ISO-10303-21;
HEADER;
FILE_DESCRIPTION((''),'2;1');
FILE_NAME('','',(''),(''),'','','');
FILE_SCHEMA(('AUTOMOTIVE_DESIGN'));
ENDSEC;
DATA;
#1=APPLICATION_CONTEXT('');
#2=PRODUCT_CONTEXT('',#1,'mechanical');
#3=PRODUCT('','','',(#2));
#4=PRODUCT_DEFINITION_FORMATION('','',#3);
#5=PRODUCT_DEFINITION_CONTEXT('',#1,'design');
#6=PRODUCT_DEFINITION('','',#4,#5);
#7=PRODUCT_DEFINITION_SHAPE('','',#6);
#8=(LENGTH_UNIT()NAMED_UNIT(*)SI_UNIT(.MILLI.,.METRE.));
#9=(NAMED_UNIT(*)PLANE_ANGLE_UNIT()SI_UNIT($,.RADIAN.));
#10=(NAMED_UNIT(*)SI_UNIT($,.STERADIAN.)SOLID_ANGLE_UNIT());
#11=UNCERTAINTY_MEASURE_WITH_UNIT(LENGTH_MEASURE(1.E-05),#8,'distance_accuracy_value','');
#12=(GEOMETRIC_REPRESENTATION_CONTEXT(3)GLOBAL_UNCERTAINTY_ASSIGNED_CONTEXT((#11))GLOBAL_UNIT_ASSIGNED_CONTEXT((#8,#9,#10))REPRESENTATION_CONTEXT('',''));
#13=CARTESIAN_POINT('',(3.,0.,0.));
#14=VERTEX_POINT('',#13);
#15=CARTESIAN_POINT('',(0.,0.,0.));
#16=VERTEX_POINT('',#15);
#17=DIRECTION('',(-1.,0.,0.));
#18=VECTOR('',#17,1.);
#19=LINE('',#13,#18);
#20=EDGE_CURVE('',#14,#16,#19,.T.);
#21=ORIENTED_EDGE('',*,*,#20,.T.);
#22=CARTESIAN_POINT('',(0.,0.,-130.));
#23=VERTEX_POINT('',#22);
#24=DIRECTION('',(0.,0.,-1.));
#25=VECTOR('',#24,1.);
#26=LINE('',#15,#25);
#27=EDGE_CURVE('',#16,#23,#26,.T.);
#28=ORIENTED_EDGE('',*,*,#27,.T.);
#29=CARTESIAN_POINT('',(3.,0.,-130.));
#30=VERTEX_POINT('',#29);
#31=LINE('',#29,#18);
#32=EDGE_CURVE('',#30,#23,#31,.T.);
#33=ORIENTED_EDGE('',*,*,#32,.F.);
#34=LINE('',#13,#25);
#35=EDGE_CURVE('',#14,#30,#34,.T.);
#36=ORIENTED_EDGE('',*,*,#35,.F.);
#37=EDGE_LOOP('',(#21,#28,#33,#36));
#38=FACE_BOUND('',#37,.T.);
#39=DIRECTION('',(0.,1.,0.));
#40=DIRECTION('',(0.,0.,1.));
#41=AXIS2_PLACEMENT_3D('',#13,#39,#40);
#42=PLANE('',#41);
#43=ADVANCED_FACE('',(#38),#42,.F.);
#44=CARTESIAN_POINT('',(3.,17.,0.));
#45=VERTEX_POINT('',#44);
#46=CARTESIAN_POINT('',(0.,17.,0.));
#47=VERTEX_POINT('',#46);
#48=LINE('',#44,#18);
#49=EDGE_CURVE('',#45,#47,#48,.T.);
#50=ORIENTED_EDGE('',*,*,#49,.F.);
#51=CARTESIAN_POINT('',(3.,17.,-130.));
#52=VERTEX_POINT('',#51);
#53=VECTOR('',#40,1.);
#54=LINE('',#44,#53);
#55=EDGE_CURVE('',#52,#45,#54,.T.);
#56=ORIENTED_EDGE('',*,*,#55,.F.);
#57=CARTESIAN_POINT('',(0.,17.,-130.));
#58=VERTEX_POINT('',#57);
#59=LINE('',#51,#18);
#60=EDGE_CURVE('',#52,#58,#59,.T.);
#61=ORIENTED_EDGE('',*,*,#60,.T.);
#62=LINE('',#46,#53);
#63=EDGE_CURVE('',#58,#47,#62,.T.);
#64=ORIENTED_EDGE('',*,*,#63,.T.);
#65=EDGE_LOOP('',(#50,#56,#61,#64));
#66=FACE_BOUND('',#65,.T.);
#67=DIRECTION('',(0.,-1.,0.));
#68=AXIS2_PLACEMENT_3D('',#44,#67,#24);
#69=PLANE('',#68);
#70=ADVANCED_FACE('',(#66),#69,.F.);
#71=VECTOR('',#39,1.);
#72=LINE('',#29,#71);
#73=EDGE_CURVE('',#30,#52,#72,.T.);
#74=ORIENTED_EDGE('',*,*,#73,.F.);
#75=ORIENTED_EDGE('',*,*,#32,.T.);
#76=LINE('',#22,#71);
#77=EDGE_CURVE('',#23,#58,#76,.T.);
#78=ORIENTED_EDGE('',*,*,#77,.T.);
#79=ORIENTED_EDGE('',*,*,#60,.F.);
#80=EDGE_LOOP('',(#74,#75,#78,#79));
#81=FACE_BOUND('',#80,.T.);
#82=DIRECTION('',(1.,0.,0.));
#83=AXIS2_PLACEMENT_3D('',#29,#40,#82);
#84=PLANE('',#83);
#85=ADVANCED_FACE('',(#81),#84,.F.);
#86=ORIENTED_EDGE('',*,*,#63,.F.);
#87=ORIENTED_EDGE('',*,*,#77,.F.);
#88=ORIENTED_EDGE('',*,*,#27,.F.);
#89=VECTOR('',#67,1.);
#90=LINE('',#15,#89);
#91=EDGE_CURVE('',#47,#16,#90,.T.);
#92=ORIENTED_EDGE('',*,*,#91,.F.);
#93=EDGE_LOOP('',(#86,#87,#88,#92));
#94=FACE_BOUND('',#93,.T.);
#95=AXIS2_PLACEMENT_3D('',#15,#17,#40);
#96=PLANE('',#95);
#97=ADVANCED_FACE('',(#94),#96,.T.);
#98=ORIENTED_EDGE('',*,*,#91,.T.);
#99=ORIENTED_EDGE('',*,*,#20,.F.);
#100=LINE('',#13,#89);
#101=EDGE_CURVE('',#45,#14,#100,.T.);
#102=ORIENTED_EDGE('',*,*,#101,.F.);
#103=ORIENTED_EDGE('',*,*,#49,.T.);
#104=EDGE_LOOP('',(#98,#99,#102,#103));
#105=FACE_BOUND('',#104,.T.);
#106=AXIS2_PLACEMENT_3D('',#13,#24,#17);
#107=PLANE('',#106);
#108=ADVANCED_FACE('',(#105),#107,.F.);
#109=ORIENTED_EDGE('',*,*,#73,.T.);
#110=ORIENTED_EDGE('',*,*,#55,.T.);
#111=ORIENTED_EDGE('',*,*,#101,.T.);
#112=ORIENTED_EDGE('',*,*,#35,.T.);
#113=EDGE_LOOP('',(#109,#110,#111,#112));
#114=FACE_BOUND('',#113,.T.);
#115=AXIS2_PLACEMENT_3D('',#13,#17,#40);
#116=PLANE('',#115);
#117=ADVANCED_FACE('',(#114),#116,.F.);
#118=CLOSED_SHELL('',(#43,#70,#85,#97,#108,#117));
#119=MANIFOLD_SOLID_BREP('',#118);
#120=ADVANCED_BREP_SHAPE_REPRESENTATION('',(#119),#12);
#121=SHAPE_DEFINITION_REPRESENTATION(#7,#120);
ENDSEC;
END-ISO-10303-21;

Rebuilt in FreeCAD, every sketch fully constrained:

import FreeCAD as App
import Part
import Sketcher


def add_polygon(sketch, points):
    """Adds a closed chain of lines whose ends are joined by coincident constraints."""
    first, n = sketch.GeometryCount, len(points)
    for a, b in zip(points, points[1:] + points[:1]):
        sketch.addGeometry(Part.LineSegment(App.Vector(*a, 0), App.Vector(*b, 0)), False)
    for i in range(n):
        sketch.addConstraint(Sketcher.Constraint("Coincident", first + i, 2, first + (i + 1) % n, 1))

doc = App.newDocument("Part")
body = doc.addObject("PartDesign::Body", "Body")

# Sketch on YZ plane
sketch1 = body.newObject("Sketcher::SketchObject", "Sketch")
sketch1.AttachmentSupport = (doc.getObject("YZ_Plane"), [""])
sketch1.MapMode = "FlatFace"
add_polygon(sketch1, [(17, 0), (0, 0), (0, -130), (17, -130)])  # lines 0-3
sketch1.addConstraint([
    Sketcher.Constraint("Horizontal", 0),
    Sketcher.Constraint("Vertical", 1),
    Sketcher.Constraint("Horizontal", 2),
    Sketcher.Constraint("Vertical", 3),
    Sketcher.Constraint("Coincident", 0, 2, -1, 1),
    Sketcher.Constraint("DistanceX", 0, 2, 0, 1, 17.0),
    Sketcher.Constraint("DistanceY", 1, 2, 1, 1, 130.0),
])
pad1 = body.newObject("PartDesign::Pad", "Pad")
pad1.Profile = sketch1
pad1.Length = 3

doc.recompute()
